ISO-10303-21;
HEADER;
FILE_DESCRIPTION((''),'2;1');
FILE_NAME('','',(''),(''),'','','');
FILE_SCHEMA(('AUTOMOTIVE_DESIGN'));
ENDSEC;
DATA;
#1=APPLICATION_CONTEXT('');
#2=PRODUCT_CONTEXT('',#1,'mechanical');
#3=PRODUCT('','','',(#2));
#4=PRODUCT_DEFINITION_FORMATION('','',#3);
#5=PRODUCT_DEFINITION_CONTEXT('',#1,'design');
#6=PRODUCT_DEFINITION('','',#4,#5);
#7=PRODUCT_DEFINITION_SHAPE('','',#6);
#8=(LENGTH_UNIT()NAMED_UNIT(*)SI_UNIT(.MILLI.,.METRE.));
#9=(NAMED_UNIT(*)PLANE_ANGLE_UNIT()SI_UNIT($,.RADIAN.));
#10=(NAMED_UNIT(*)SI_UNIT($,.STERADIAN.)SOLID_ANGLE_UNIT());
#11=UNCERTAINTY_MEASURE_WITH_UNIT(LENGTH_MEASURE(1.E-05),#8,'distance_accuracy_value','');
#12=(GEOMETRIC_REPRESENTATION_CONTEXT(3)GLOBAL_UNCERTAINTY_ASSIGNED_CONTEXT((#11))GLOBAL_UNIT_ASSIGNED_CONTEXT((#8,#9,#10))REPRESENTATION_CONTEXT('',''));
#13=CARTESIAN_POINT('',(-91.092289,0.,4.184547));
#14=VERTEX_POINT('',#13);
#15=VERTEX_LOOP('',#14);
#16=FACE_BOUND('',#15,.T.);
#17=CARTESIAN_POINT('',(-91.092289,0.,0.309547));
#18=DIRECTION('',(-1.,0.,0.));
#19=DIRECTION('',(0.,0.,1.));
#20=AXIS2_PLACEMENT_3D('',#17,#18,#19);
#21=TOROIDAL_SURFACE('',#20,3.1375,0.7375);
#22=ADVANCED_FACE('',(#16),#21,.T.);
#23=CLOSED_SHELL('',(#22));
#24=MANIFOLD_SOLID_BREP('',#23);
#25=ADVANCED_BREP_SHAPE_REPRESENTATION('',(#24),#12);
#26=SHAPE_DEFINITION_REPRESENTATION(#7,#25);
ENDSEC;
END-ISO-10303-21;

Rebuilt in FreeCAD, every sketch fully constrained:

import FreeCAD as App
import Part
import Sketcher
Q = App.Units.Quantity

doc = App.newDocument("Part")
body = doc.addObject("PartDesign::Body", "Body")

# Sketch on XZ plane
sketch1 = body.newObject("Sketcher::SketchObject", "Sketch")
sketch1.AttachmentSupport = (doc.getObject("XZ_Plane"), [""])
sketch1.MapMode = "FlatFace"
sketch1.addGeometry(Part.Circle(App.Vector(-91.092289, 3.447047, 0), App.Vector(0, 0, 1), 0.7375), False)
sketch1.addGeometry(Part.LineSegment(App.Vector(-91.092289, 0.309547, 0), App.Vector(-81.092289, 0.309547, 0)), True)  # axis
sketch1.addConstraint([
    Sketcher.Constraint("Horizontal", 1),
    Sketcher.Constraint("Vertical", 0, 3, 1, 1),
    Sketcher.Constraint("DistanceX", 1, 1, 1, 2, Q("10 mm")),
    Sketcher.Constraint("Diameter", 0, Q("1.475 mm")),
    Sketcher.Constraint("DistanceY", 1, 1, 0, 3, Q("3.1375 mm")),
    Sketcher.Constraint("DistanceX", 0, 3, -1, 1, Q("91.092289 mm")),
    Sketcher.Constraint("DistanceY", -1, 1, 0, 3, Q("3.447047 mm")),
])
revolution = body.newObject("PartDesign::Revolution", "Revolution")
revolution.Profile = sketch1
revolution.ReferenceAxis = (sketch1, ["Axis0"])
revolution.Angle = 360

doc.recompute()
